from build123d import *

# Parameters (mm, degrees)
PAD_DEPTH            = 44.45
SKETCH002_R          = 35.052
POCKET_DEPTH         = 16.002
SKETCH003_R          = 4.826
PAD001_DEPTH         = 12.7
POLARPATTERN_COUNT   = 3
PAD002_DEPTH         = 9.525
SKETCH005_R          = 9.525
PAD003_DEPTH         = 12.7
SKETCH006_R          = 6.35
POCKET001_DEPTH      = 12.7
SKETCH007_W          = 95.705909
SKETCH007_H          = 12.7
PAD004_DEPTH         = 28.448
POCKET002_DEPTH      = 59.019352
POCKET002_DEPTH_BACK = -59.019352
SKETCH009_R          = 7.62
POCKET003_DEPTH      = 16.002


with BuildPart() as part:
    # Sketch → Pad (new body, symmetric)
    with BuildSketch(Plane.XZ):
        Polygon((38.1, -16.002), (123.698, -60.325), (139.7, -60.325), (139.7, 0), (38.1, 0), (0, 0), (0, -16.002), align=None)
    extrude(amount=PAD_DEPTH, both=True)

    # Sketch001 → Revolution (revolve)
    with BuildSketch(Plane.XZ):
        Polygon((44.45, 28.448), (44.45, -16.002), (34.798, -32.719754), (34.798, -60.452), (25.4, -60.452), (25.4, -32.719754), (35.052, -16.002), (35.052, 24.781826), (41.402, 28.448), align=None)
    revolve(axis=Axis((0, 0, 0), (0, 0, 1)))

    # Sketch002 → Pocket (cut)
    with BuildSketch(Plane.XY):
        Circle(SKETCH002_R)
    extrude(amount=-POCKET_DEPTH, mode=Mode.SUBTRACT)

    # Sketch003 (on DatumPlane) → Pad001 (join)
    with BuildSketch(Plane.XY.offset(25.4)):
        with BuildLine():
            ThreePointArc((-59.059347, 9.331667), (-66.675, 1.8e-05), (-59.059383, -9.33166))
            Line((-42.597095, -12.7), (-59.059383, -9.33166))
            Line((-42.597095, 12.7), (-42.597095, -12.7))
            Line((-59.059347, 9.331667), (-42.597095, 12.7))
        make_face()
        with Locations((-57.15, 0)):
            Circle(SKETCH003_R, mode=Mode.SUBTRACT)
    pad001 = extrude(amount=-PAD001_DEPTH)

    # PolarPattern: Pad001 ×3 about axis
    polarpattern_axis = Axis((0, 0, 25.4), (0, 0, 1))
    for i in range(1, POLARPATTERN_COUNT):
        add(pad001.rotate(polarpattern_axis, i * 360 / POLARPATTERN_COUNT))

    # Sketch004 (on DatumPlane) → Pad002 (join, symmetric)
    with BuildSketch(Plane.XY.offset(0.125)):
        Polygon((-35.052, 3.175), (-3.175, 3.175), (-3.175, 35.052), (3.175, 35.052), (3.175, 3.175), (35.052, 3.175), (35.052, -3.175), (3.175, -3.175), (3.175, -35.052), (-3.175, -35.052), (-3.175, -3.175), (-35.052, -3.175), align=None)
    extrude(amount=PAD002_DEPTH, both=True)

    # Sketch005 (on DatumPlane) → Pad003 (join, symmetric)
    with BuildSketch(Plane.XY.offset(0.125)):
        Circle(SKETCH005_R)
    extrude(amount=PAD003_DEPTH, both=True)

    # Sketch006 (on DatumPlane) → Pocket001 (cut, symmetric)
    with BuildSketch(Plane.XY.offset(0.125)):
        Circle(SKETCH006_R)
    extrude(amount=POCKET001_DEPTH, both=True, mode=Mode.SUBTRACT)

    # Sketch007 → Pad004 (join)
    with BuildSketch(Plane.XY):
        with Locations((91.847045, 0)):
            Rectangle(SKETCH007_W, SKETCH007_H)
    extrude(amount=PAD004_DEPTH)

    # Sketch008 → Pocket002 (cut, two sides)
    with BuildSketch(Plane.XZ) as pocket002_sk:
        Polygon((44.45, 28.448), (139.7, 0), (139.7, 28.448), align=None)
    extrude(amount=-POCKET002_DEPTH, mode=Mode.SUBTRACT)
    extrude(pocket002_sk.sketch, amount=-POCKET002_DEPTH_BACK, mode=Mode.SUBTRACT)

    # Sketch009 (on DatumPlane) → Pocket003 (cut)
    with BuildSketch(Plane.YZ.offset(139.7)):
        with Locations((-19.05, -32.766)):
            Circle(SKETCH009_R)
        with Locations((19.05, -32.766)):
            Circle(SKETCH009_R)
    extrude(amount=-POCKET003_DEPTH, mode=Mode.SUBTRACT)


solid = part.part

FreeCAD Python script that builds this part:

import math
import FreeCAD as App
import Part
import Sketcher
Q = App.Units.Quantity

doc = App.newDocument("Part")
body = doc.addObject("PartDesign::Body", "Body")

# Sketch on XZ plane
sketch1 = body.newObject("Sketcher::SketchObject", "Sketch")
sketch1.AttachmentSupport = (doc.getObject("XZ_Plane"), [""])
sketch1.MapMode = "FlatFace"
sketch1.addGeometry([
    Part.LineSegment(App.Vector(38, -16, 0), App.Vector(124, -60, 0)),  # 0
    Part.LineSegment(App.Vector(124, -60, 0), App.Vector(140, -60, 0)),  # 1
    Part.LineSegment(App.Vector(140, -60, 0), App.Vector(140, 0, 0)),  # 2
    Part.LineSegment(App.Vector(140, 0, 0), App.Vector(0, 0, 0)),  # 3
    Part.LineSegment(App.Vector(0, 0, 0), App.Vector(0, -16, 0)),  # 4
    Part.LineSegment(App.Vector(0, -16, 0), App.Vector(38, -16, 0)),  # 5
], False)
sketch1.addConstraint([
    Sketcher.Constraint("Coincident", 0, 2, 1, 1),
    Sketcher.Constraint("Coincident", 1, 2, 2, 1),
    Sketcher.Constraint("Coincident", 2, 2, 3, 1),
    Sketcher.Constraint("Coincident", 3, 2, 4, 1),
    Sketcher.Constraint("Coincident", 4, 2, 5, 1),
    Sketcher.Constraint("Coincident", 5, 2, 0, 1),
    Sketcher.Constraint("Horizontal", 1),
    Sketcher.Constraint("Vertical", 2),
    Sketcher.Constraint("Horizontal", 3),
    Sketcher.Constraint("Vertical", 4),
    Sketcher.Constraint("Horizontal", 5),
    Sketcher.Constraint("Coincident", 3, 2, -1, 1),
    Sketcher.Constraint("Equal", 1, 4),
    Sketcher.Constraint("DistanceX", 3, 2, 3, 1, Q("5.5 in")),
    Sketcher.Constraint("DistanceX", 5, 1, 5, 2, Q("1.5 in")),
    Sketcher.Constraint("DistanceX", 1, 1, 1, 2, Q("0.63 in")),
    Sketcher.Constraint("DistanceY", 2, 1, 2, 2, Q("2.375 in")),
])
pad1 = body.newObject("PartDesign::Pad", "Pad")
pad1.Profile = sketch1
pad1.Length = Q("3.5 in")
pad1.Midplane = True

# Sketch on XZ plane
sketch2 = body.newObject("Sketcher::SketchObject", "Sketch001")
sketch2.AttachmentSupport = (doc.getObject("XZ_Plane"), [""])
sketch2.MapMode = "FlatFace"
sketch2.addGeometry([
    Part.LineSegment(App.Vector(44.5, -16, 0), App.Vector(44.5, 28.4, 0)),  # 0
    Part.LineSegment(App.Vector(44.5, 28.4, 0), App.Vector(41.4, 28.4, 0)),  # 1
    Part.LineSegment(App.Vector(41.4, 28.4, 0), App.Vector(35.1, 24.8, 0)),  # 2
    Part.LineSegment(App.Vector(35.1, 24.8, 0), App.Vector(35.1, -16, 0)),  # 3
    Part.LineSegment(App.Vector(35.1, -16, 0), App.Vector(25.4, -32.7, 0)),  # 4
    Part.LineSegment(App.Vector(25.4, -32.7, 0), App.Vector(25.4, -60.5, 0)),  # 5
    Part.LineSegment(App.Vector(25.4, -60.5, 0), App.Vector(34.8, -60.5, 0)),  # 6
    Part.LineSegment(App.Vector(34.8, -60.5, 0), App.Vector(34.8, -32.7, 0)),  # 7
    Part.LineSegment(App.Vector(34.8, -32.7, 0), App.Vector(44.5, -16, 0)),  # 8
], False)
sketch2.addConstraint([
    Sketcher.Constraint("Coincident", 0, 2, 1, 1),
    Sketcher.Constraint("Coincident", 1, 2, 2, 1),
    Sketcher.Constraint("Coincident", 2, 2, 3, 1),
    Sketcher.Constraint("Coincident", 3, 2, 4, 1),
    Sketcher.Constraint("Coincident", 4, 2, 5, 1),
    Sketcher.Constraint("Coincident", 5, 2, 6, 1),
    Sketcher.Constraint("Coincident", 6, 2, 7, 1),
    Sketcher.Constraint("Coincident", 7, 2, 8, 1),
    Sketcher.Constraint("Coincident", 8, 2, 0, 1),
    Sketcher.Constraint("Vertical", 0),
    Sketcher.Constraint("Horizontal", 1),
    Sketcher.Constraint("Vertical", 3),
    Sketcher.Constraint("Vertical", 5),
    Sketcher.Constraint("Horizontal", 6),
    Sketcher.Constraint("Vertical", 7),
    Sketcher.Constraint("Parallel", 4, 8),
    Sketcher.Constraint("Horizontal", 4, 2, 7, 2),
    Sketcher.Constraint("Horizontal", 3, 2, 8, 2),
    Sketcher.Constraint("DistanceX", -1, 1, 4, 2, Q("1 in")),
    Sketcher.Constraint("Angle", 2, Q("-150.000001 deg")),
    Sketcher.Constraint("Angle", 4, Q("-120.000001 deg")),
    Sketcher.Constraint("DistanceX", 1, 2, 1, 1, Q("0.12 in")),
    Sketcher.Constraint("DistanceX", 6, 1, 6, 2, Q("0.37 in")),
    Sketcher.Constraint("DistanceY", 0, 1, 0, 2, Q("1.75 in")),
    Sketcher.Constraint("DistanceY", 5, 2, 1, 2, Q("3.5 in")),
    Sketcher.Constraint("Distance", 4, Q("0.76 in")),
    Sketcher.Constraint("DistanceY", -1, 1, 0, 2, Q("1.12 in")),
])
revolution = body.newObject("PartDesign::Revolution", "Revolution")
revolution.Profile = sketch2
revolution.ReferenceAxis = (sketch2, ["V_Axis"])
revolution.Angle = 360

# Sketch on XY plane
sketch3 = body.newObject("Sketcher::SketchObject", "Sketch002")
sketch3.AttachmentSupport = (doc.getObject("XY_Plane"), [""])
sketch3.MapMode = "FlatFace"
sketch3.addGeometry(Part.Circle(App.Vector(0, 0, 0), App.Vector(0, 0, 1), 35), False)
sketch3.addConstraint([
    Sketcher.Constraint("Coincident", 0, 3, -1, 1),
    Sketcher.Constraint("Diameter", 0, Q("2.76 in")),
])
pocket1 = body.newObject("PartDesign::Pocket", "Pocket")
pocket1.Profile = sketch3
pocket1.Length = Q("0.63 in")

# Sketch on XY plane
sketch4 = body.newObject("Sketcher::SketchObject", "Sketch003")
sketch4.AttachmentSupport = (doc.getObject("XY_Plane"), [""])
sketch4.MapMode = "FlatFace"
sketch4.AttachmentOffset = App.Placement(App.Vector(0, 0, 1 * 25.4), App.Rotation())
sketch4.addGeometry([
    Part.ArcOfCircle(Part.Circle(App.Vector(-57.2, 0, 0), App.Vector(0, 0, 1), 9.5), math.radians(102), math.radians(258)),  # 0
    Part.LineSegment(App.Vector(-59.1, -9.3, 0), App.Vector(-42.6, -12.7, 0)),  # 1
    Part.LineSegment(App.Vector(-42.6, -12.7, 0), App.Vector(-42.6, 12.7, 0)),  # 2
    Part.LineSegment(App.Vector(-42.6, 12.7, 0), App.Vector(-59.1, 9.3, 0)),  # 3
    Part.Circle(App.Vector(-57.1, 0, 0), App.Vector(0, 0, 1), 4.8),  # 4
], False)
sketch4.addConstraint([
    Sketcher.Constraint("Coincident", 0, 2, 1, 1),
    Sketcher.Constraint("Coincident", 1, 2, 2, 1),
    Sketcher.Constraint("Coincident", 2, 2, 3, 1),
    Sketcher.Constraint("Tangent", 3, 2, 0, 1),
    Sketcher.Constraint("Vertical", 2),
    Sketcher.Constraint("Coincident", 4, 3, 0, 3),
    Sketcher.Constraint("PointOnObject", 0, 3, -1),
    Sketcher.Constraint("Diameter", 4, Q("0.38 in")),
    Sketcher.Constraint("DistanceY", 2, 1, 2, 2, Q("1 in")),
    Sketcher.Constraint("Radius", 0, Q("0.375 in")),
    Sketcher.Constraint("DistanceY", 1, 2, -1, 1, Q("0.5 in")),
    Sketcher.Constraint("DistanceX", 0, 3, -1, 1, Q("2.25 in")),
    Sketcher.Constraint("DistanceY", 0, 2, -1, 1, Q("9.33166 mm")),
    Sketcher.Constraint("DistanceX", 3, 2, 2, 2, Q("16.462252 mm")),
])
pad2 = body.newObject("PartDesign::Pad", "Pad001")
pad2.Profile = sketch4
pad2.Length = Q("0.5 in")
pad2.Reversed = True
doc.recompute()

polarpattern = body.newObject("PartDesign::PolarPattern", "PolarPattern")
polarpattern.Originals = [pad2]
polarpattern.Axis = (doc.getObject("Z_Axis"), [""])
polarpattern.Angle = 360
polarpattern.Occurrences = 3
body.Tip = polarpattern

# Sketch on XY plane
sketch5 = body.newObject("Sketcher::SketchObject", "Sketch004")
sketch5.AttachmentSupport = (doc.getObject("XY_Plane"), [""])
sketch5.MapMode = "FlatFace"
sketch5.AttachmentOffset = App.Placement(App.Vector(0, 0, 0.125), App.Rotation())
sketch5.addGeometry([
    Part.LineSegment(App.Vector(-3, 3, 0), App.Vector(-35, 3, 0)),  # 0
    Part.LineSegment(App.Vector(-35, 3, 0), App.Vector(-35, -3, 0)),  # 1
    Part.LineSegment(App.Vector(-35, -3, 0), App.Vector(-3, -3, 0)),  # 2
    Part.LineSegment(App.Vector(-3, -3, 0), App.Vector(-3, -35, 0)),  # 3
    Part.LineSegment(App.Vector(-3, -35, 0), App.Vector(3, -35, 0)),  # 4
    Part.LineSegment(App.Vector(3, -35, 0), App.Vector(3, -3, 0)),  # 5
    Part.LineSegment(App.Vector(3, -3, 0), App.Vector(35, -3, 0)),  # 6
    Part.LineSegment(App.Vector(35, -3, 0), App.Vector(35, 3, 0)),  # 7
    Part.LineSegment(App.Vector(35, 3, 0), App.Vector(3, 3, 0)),  # 8
    Part.LineSegment(App.Vector(3, 3, 0), App.Vector(3, 35, 0)),  # 9
    Part.LineSegment(App.Vector(3, 35, 0), App.Vector(-3, 35, 0)),  # 10
    Part.LineSegment(App.Vector(-3, 35, 0), App.Vector(-3, 3, 0)),  # 11
], False)
sketch5.addConstraint([
    Sketcher.Constraint("Coincident", 0, 2, 1, 1),
    Sketcher.Constraint("Coincident", 1, 2, 2, 1),
    Sketcher.Constraint("Coincident", 2, 2, 3, 1),
    Sketcher.Constraint("Coincident", 3, 2, 4, 1),
    Sketcher.Constraint("Coincident", 4, 2, 5, 1),
    Sketcher.Constraint("Coincident", 5, 2, 6, 1),
    Sketcher.Constraint("Coincident", 6, 2, 7, 1),
    Sketcher.Constraint("Coincident", 7, 2, 8, 1),
    Sketcher.Constraint("Coincident", 8, 2, 9, 1),
    Sketcher.Constraint("Coincident", 9, 2, 10, 1),
    Sketcher.Constraint("Coincident", 10, 2, 11, 1),
    Sketcher.Constraint("Coincident", 11, 2, 0, 1),
    Sketcher.Constraint("Horizontal", 0),
    Sketcher.Constraint("Vertical", 1),
    Sketcher.Constraint("Horizontal", 2),
    Sketcher.Constraint("Vertical", 3),
    Sketcher.Constraint("Horizontal", 4),
    Sketcher.Constraint("Vertical", 5),
    Sketcher.Constraint("Horizontal", 6),
    Sketcher.Constraint("Vertical", 7),
    Sketcher.Constraint("Horizontal", 8),
    Sketcher.Constraint("Vertical", 9),
    Sketcher.Constraint("Horizontal", 10),
    Sketcher.Constraint("Vertical", 11),
    Sketcher.Constraint("Symmetric", 0, 2, 6, 2, -1, 1),
    Sketcher.Constraint("Symmetric", 2, 2, 8, 2, -1, 1),
    Sketcher.Constraint("Symmetric", 4, 2, 10, 2, -1, 1),
    Sketcher.Constraint("Symmetric", 2, 2, 5, 2, -2),
    Sketcher.Constraint("Equal", 10, 1),
    Sketcher.Constraint("Equal", 8, 3),
    Sketcher.Constraint("DistanceX", 4, 1, 4, 2, Q("0.25 in")),
    Sketcher.Constraint("DistanceX", 0, 2, 0, 1, Q("1.255 in")),
])
pad3 = body.newObject("PartDesign::Pad", "Pad002")
pad3.Profile = sketch5
pad3.Length = Q("0.75 in")
pad3.Midplane = True

# Sketch on XY plane
sketch6 = body.newObject("Sketcher::SketchObject", "Sketch005")
sketch6.AttachmentSupport = (doc.getObject("XY_Plane"), [""])
sketch6.MapMode = "FlatFace"
sketch6.AttachmentOffset = App.Placement(App.Vector(0, 0, 0.125), App.Rotation())
sketch6.addGeometry(Part.Circle(App.Vector(0, 0, 0), App.Vector(0, 0, 1), 10), False)
sketch6.addConstraint([
    Sketcher.Constraint("Coincident", 0, 3, -1, 1),
    Sketcher.Constraint("Diameter", 0, Q("0.75 in")),
])
pad4 = body.newObject("PartDesign::Pad", "Pad003")
pad4.Profile = sketch6
pad4.Length = Q("1 in")
pad4.Midplane = True

# Sketch on XY plane
sketch7 = body.newObject("Sketcher::SketchObject", "Sketch006")
sketch7.AttachmentSupport = (doc.getObject("XY_Plane"), [""])
sketch7.MapMode = "FlatFace"
sketch7.AttachmentOffset = App.Placement(App.Vector(0, 0, 0.125), App.Rotation())
sketch7.addGeometry(Part.Circle(App.Vector(0, 0, 0), App.Vector(0, 0, 1), 6), False)
sketch7.addConstraint([
    Sketcher.Constraint("Coincident", 0, 3, -1, 1),
    Sketcher.Constraint("Diameter", 0, Q("0.5 in")),
])
pocket2 = body.newObject("PartDesign::Pocket", "Pocket001")
pocket2.Profile = sketch7
pocket2.Length = Q("1 in")
pocket2.Midplane = True

# Sketch on XY plane
sketch8 = body.newObject("Sketcher::SketchObject", "Sketch007")
sketch8.AttachmentSupport = (doc.getObject("XY_Plane"), [""])
sketch8.MapMode = "FlatFace"
sketch8.addGeometry([
    Part.LineSegment(App.Vector(44, 6, 0), App.Vector(44, -6, 0)),
    Part.LineSegment(App.Vector(44, -6, 0), App.Vector(140, -6, 0)),
    Part.LineSegment(App.Vector(140, -6, 0), App.Vector(140, 6, 0)),
    Part.LineSegment(App.Vector(140, 6, 0), App.Vector(44, 6, 0)),
], False)
sketch8.addConstraint([
    Sketcher.Constraint("Coincident", 0, 2, 1, 1),
    Sketcher.Constraint("Coincident", 1, 2, 2, 1),
    Sketcher.Constraint("Coincident", 2, 2, 3, 1),
    Sketcher.Constraint("Coincident", 3, 2, 0, 1),
    Sketcher.Constraint("Vertical", 0),
    Sketcher.Constraint("Horizontal", 1),
    Sketcher.Constraint("Vertical", 2),
    Sketcher.Constraint("Horizontal", 3),
    Sketcher.Constraint("DistanceY", 0, 2, 0, 1, Q("0.5 in")),
    Sketcher.Constraint("DistanceX", -1, 1, 1, 2, Q("5.5 in")),
    Sketcher.Constraint("DistanceY", 0, 2, -1, 1, Q("0.25 in")),
    Sketcher.Constraint("DistanceX", 1, 1, 1, 2, Q("95.705909 mm")),
])
pad5 = body.newObject("PartDesign::Pad", "Pad004")
pad5.Profile = sketch8
pad5.Length = Q("1.12 in")

# Sketch on XZ plane
sketch9 = body.newObject("Sketcher::SketchObject", "Sketch008")
sketch9.AttachmentSupport = (doc.getObject("XZ_Plane"), [""])
sketch9.MapMode = "FlatFace"
sketch9.addGeometry([
    Part.LineSegment(App.Vector(44, 28, 0), App.Vector(140, 0, 0)),
    Part.LineSegment(App.Vector(140, 0, 0), App.Vector(140, 28, 0)),
    Part.LineSegment(App.Vector(140, 28, 0), App.Vector(44, 28, 0)),
], False)
sketch9.addConstraint([
    Sketcher.Constraint("Coincident", 0, 2, 1, 1),
    Sketcher.Constraint("Coincident", 1, 2, 2, 1),
    Sketcher.Constraint("Coincident", 2, 2, 0, 1),
    Sketcher.Constraint("Vertical", 1),
    Sketcher.Constraint("Horizontal", 2),
    Sketcher.Constraint("PointOnObject", 0, 2, -1),
    Sketcher.Constraint("DistanceX", 2, 2, 2, 1, Q("3.75 in")),
    Sketcher.Constraint("DistanceY", 1, 1, 1, 2, Q("1.12 in")),
    Sketcher.Constraint("DistanceX", -1, 1, 0, 2, Q("5.5 in")),
])
pocket3 = body.newObject("PartDesign::Pocket", "Pocket002")
pocket3.Profile = sketch9
pocket3.Type = "ThroughAll"
pocket3.Midplane = True

# Sketch on YZ plane
sketch10 = body.newObject("Sketcher::SketchObject", "Sketch009")
sketch10.AttachmentSupport = (doc.getObject("YZ_Plane"), [""])
sketch10.MapMode = "FlatFace"
sketch10.AttachmentOffset = App.Placement(App.Vector(0, 0, 5.5 * 25.4), App.Rotation())
sketch10.addGeometry([
    Part.Circle(App.Vector(-19, -33, 0), App.Vector(0, 0, 1), 8),
    Part.Circle(App.Vector(19, -33, 0), App.Vector(0, 0, 1), 8),
], False)
sketch10.addConstraint([
    Sketcher.Constraint("Equal", 0, 1),
    Sketcher.Constraint("Symmetric", 0, 3, 1, 3, -2),
    Sketcher.Constraint("Diameter", 0, Q("0.6 in")),
    Sketcher.Constraint("DistanceX", 0, 3, 1, 3, Q("1.5 in")),
    Sketcher.Constraint("DistanceY", 0, 3, -1, 1, Q("1.29 in")),
])
pocket4 = body.newObject("PartDesign::Pocket", "Pocket003")
pocket4.Profile = sketch10
pocket4.Length = Q("0.63 in")

doc.recompute()
